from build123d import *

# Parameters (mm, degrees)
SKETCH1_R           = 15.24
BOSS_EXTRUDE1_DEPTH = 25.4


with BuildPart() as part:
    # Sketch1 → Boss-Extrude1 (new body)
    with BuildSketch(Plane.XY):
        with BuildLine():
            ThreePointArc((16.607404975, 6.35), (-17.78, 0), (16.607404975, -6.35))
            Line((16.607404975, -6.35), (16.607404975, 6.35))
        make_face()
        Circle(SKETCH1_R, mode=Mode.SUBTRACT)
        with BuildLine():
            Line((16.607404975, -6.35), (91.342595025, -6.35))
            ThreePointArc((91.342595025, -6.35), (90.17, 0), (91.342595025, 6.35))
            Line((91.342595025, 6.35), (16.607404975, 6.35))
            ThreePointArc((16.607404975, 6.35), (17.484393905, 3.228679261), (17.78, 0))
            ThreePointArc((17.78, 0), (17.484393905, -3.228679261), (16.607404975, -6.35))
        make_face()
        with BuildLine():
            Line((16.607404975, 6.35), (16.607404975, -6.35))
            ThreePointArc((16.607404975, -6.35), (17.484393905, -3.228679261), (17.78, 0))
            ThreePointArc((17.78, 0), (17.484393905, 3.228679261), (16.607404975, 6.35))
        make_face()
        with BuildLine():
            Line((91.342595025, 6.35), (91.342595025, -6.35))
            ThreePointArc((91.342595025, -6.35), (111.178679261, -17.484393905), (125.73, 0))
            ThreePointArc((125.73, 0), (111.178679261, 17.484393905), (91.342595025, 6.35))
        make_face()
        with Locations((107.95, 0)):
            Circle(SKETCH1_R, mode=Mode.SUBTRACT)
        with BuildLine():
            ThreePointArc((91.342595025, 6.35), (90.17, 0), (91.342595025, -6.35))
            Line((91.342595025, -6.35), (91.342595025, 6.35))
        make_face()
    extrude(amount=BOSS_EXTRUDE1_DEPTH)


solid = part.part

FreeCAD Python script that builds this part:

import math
import FreeCAD as App
import Part
import Sketcher
from FreeCAD import Vector
Q = App.Units.Quantity

doc = App.newDocument("Part")
body = doc.addObject("PartDesign::Body", "Body")

# Sketch on XY plane
sketch1 = body.newObject("Sketcher::SketchObject", "Sketch")
sketch1.AttachmentSupport = (doc.getObject("XY_Plane"), [""])
sketch1.MapMode = "FlatFace"
sketch1.addGeometry([
    Part.ArcOfCircle(Part.Circle(Vector(0, 0, 0), Vector(0, 0, 1), 18), math.radians(21), math.radians(339)),  # 0
    Part.LineSegment(Vector(17, -6, 0), Vector(91, -6, 0)),  # 1
    Part.ArcOfCircle(Part.Circle(Vector(108, 0, 0), Vector(0, 0, 1), 18), math.radians(-159), math.radians(0)),  # 2
    Part.ArcOfCircle(Part.Circle(Vector(108, 0, 0), Vector(0, 0, 1), 18), math.radians(0), math.radians(159)),  # 3
    Part.LineSegment(Vector(91, 6, 0), Vector(17, 6, 0)),  # 4
    Part.Circle(Vector(0, 0, 0), Vector(0, 0, 1), 15),  # 5
    Part.Circle(Vector(108, 0, 0), Vector(0, 0, 1), 15),  # 6
], False)
sketch1.addConstraint([
    Sketcher.Constraint("Coincident", 0, 2, 1, 1),
    Sketcher.Constraint("Coincident", 1, 2, 2, 1),
    Sketcher.Constraint("Tangent", 2, 2, 3, 1),
    Sketcher.Constraint("Coincident", 3, 2, 4, 1),
    Sketcher.Constraint("Coincident", 4, 2, 0, 1),
    Sketcher.Constraint("Horizontal", 1),
    Sketcher.Constraint("Horizontal", 4),
    Sketcher.Constraint("Coincident", 0, 3, -1, 1),
    Sketcher.Constraint("Coincident", 5, 3, -1, 1),
    Sketcher.Constraint("Coincident", 6, 3, 2, 3),
    Sketcher.Constraint("Equal", 0, 2),
    Sketcher.Constraint("Equal", 2, 3),
    Sketcher.Constraint("Equal", 5, 6),
    Sketcher.Constraint("Symmetric", 1, 2, 3, 2, -1),
    Sketcher.Constraint("PointOnObject", 2, 2, -1),
    Sketcher.Constraint("Diameter", 5, Q("1.2 in")),
    Sketcher.Constraint("Radius", 0, Q("0.7 in")),
    Sketcher.Constraint("DistanceY", 1, 2, 3, 2, Q("0.5 in")),
    Sketcher.Constraint("DistanceX", -1, 1, 2, 3, Q("4.25 in")),
])
pad1 = body.newObject("PartDesign::Pad", "Pad")
pad1.Profile = sketch1
pad1.Length = Q("1 in")

doc.recompute()
